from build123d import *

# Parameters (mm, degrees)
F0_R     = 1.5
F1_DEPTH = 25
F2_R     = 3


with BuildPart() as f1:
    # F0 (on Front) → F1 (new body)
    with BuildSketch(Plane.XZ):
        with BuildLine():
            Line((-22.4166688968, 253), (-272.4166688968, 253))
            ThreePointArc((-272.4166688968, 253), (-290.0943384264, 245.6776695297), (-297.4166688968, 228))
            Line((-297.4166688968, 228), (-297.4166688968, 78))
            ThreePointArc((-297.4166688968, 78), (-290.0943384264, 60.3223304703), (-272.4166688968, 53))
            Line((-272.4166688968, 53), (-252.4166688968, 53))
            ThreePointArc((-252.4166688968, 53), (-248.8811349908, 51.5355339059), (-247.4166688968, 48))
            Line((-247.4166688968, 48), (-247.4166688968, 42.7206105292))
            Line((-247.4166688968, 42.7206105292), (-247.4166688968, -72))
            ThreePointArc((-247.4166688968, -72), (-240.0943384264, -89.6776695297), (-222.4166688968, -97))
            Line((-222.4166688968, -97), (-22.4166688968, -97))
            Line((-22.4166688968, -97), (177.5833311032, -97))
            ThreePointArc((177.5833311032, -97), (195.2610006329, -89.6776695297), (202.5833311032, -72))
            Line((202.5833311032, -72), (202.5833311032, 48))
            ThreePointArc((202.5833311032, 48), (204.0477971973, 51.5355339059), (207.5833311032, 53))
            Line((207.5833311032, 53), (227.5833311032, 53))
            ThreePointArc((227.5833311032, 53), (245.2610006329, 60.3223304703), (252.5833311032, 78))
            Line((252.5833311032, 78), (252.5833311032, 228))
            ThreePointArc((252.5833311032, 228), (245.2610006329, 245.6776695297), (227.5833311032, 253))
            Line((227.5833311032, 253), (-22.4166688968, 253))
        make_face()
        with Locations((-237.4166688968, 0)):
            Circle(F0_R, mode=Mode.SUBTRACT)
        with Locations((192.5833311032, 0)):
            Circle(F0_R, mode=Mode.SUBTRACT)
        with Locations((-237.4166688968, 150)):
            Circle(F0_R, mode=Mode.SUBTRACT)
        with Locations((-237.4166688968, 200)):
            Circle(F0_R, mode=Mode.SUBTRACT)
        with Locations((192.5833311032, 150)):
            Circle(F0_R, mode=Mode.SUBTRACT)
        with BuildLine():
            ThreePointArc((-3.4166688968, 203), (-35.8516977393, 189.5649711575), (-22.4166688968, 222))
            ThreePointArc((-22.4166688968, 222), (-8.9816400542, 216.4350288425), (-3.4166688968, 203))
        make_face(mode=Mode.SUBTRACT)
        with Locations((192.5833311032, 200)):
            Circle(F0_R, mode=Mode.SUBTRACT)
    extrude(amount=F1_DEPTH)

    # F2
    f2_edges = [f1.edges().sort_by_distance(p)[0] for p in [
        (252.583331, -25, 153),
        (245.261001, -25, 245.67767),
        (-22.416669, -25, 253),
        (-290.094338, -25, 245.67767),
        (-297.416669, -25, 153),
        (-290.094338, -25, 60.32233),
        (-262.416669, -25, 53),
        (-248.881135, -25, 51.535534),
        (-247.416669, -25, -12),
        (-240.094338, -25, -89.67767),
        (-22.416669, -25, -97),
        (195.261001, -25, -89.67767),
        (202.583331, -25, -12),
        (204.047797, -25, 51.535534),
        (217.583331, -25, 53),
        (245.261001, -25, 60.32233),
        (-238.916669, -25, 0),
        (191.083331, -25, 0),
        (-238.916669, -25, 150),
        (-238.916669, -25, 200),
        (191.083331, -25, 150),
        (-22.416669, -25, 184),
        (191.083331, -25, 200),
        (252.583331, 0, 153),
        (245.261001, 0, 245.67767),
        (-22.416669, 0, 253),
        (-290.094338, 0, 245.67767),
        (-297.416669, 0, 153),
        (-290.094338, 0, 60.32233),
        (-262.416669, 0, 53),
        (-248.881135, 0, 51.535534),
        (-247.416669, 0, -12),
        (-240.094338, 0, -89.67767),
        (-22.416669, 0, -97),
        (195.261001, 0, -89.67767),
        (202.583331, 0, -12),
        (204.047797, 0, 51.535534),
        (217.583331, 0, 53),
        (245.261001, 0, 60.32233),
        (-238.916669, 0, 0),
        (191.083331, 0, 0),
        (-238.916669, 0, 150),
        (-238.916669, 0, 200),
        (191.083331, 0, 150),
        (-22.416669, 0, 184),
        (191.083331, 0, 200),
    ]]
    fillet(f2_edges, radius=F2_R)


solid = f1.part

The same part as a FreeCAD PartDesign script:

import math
import FreeCAD as App
import Part
import Sketcher
Q = App.Units.Quantity


def edges_at(feature, points):
    """Names of the edges that pass closest to the given points."""
    edges = feature.Shape.Edges
    near = lambda p: min(range(len(edges)), key=lambda i: edges[i].distToShape(Part.Vertex(*p))[0])
    return sorted({f"Edge{near(p) + 1}" for p in points})

doc = App.newDocument("Part")
body = doc.addObject("PartDesign::Body", "Body")

# Sketch on XZ plane
sketch1 = body.newObject("Sketcher::SketchObject", "Sketch")
sketch1.AttachmentSupport = (doc.getObject("XZ_Plane"), [""])
sketch1.MapMode = "FlatFace"
sketch1.addGeometry([
    Part.ArcOfCircle(Part.Circle(App.Vector(-272.4, 228, 0), App.Vector(0, 0, 1), 25), math.radians(90), math.radians(180)),  # 0
    Part.LineSegment(App.Vector(-297.4, 228, 0), App.Vector(-297.4, 78, 0)),  # 1
    Part.ArcOfCircle(Part.Circle(App.Vector(-272.4, 78, 0), App.Vector(0, 0, 1), 25), math.radians(180), math.radians(270)),  # 2
    Part.LineSegment(App.Vector(-272.4, 53, 0), App.Vector(-252.4, 53, 0)),  # 3
    Part.ArcOfCircle(Part.Circle(App.Vector(-252.4, 48, 0), App.Vector(0, 0, 1), 5), math.radians(0), math.radians(90)),  # 4
    Part.LineSegment(App.Vector(-247.4, 48, 0), App.Vector(-247.4, -72, 0)),  # 5
    Part.ArcOfCircle(Part.Circle(App.Vector(-222.4, -72, 0), App.Vector(0, 0, 1), 25), math.radians(180), math.radians(270)),  # 6
    Part.LineSegment(App.Vector(-222.4, -97, 0), App.Vector(177.6, -97, 0)),  # 7
    Part.ArcOfCircle(Part.Circle(App.Vector(177.6, -72, 0), App.Vector(0, 0, 1), 25), math.radians(-90), math.radians(0)),  # 8
    Part.LineSegment(App.Vector(202.6, -72, 0), App.Vector(202.6, 48, 0)),  # 9
    Part.ArcOfCircle(Part.Circle(App.Vector(207.6, 48, 0), App.Vector(0, 0, 1), 5), math.radians(90), math.radians(180)),  # 10
    Part.LineSegment(App.Vector(207.6, 53, 0), App.Vector(227.6, 53, 0)),  # 11
    Part.ArcOfCircle(Part.Circle(App.Vector(227.6, 78, 0), App.Vector(0, 0, 1), 25), math.radians(-90), math.radians(0)),  # 12
    Part.LineSegment(App.Vector(252.6, 78, 0), App.Vector(252.6, 228, 0)),  # 13
    Part.ArcOfCircle(Part.Circle(App.Vector(227.6, 228, 0), App.Vector(0, 0, 1), 25), math.radians(0), math.radians(90)),  # 14
    Part.LineSegment(App.Vector(227.6, 253, 0), App.Vector(-272.4, 253, 0)),  # 15
    Part.Circle(App.Vector(-237.4, 0, 0), App.Vector(0, 0, 1), 1.5),  # 16
    Part.Circle(App.Vector(192.6, 0, 0), App.Vector(0, 0, 1), 1.5),  # 17
    Part.Circle(App.Vector(-237.4, 150, 0), App.Vector(0, 0, 1), 1.5),  # 18
    Part.Circle(App.Vector(-237.4, 200, 0), App.Vector(0, 0, 1), 1.5),  # 19
    Part.Circle(App.Vector(192.6, 150, 0), App.Vector(0, 0, 1), 1.5),  # 20
    Part.Circle(App.Vector(-22.4, 203, 0), App.Vector(0, 0, 1), 19),  # 21
    Part.Circle(App.Vector(192.6, 200, 0), App.Vector(0, 0, 1), 1.5),  # 22
], False)
sketch1.addConstraint([
    Sketcher.Constraint("Tangent", 0, 2, 1, 1),
    Sketcher.Constraint("Tangent", 1, 2, 2, 1),
    Sketcher.Constraint("Tangent", 2, 2, 3, 1),
    Sketcher.Constraint("Tangent", 3, 2, 4, 2),
    Sketcher.Constraint("Tangent", 4, 1, 5, 1),
    Sketcher.Constraint("Tangent", 5, 2, 6, 1),
    Sketcher.Constraint("Tangent", 6, 2, 7, 1),
    Sketcher.Constraint("Tangent", 7, 2, 8, 1),
    Sketcher.Constraint("Tangent", 8, 2, 9, 1),
    Sketcher.Constraint("Tangent", 9, 2, 10, 2),
    Sketcher.Constraint("Tangent", 10, 1, 11, 1),
    Sketcher.Constraint("Tangent", 11, 2, 12, 1),
    Sketcher.Constraint("Tangent", 12, 2, 13, 1),
    Sketcher.Constraint("Tangent", 13, 2, 14, 1),
    Sketcher.Constraint("Tangent", 14, 2, 15, 1),
    Sketcher.Constraint("Tangent", 15, 2, 0, 1),
    Sketcher.Constraint("Vertical", 1),
    Sketcher.Constraint("Horizontal", 3),
    Sketcher.Constraint("Vertical", 5),
    Sketcher.Constraint("Horizontal", 7),
    Sketcher.Constraint("Vertical", 9),
    Sketcher.Constraint("Horizontal", 11),
    Sketcher.Constraint("Vertical", 13),
    Sketcher.Constraint("Horizontal", 15),
    Sketcher.Constraint("Equal", 0, 2),
    Sketcher.Constraint("Equal", 2, 6),
    Sketcher.Constraint("Equal", 6, 8),
    Sketcher.Constraint("Equal", 4, 10),
    Sketcher.Constraint("Equal", 8, 12),
    Sketcher.Constraint("Equal", 12, 14),
    Sketcher.Constraint("Equal", 16, 17),
    Sketcher.Constraint("Equal", 17, 18),
    Sketcher.Constraint("Equal", 18, 19),
    Sketcher.Constraint("Equal", 19, 20),
    Sketcher.Constraint("Equal", 20, 22),
    Sketcher.Constraint("PointOnObject", 16, 3, -1),
    Sketcher.Constraint("PointOnObject", 17, 3, -1),
    Sketcher.Constraint("Horizontal", 4, 3, 10, 3),
    Sketcher.Constraint("Horizontal", 18, 3, 20, 3),
    Sketcher.Constraint("Horizontal", 19, 3, 22, 3),
    Sketcher.Constraint("Vertical", 16, 3, 18, 3),
    Sketcher.Constraint("Vertical", 18, 3, 19, 3),
    Sketcher.Constraint("Vertical", 17, 3, 20, 3),
    Sketcher.Constraint("Vertical", 20, 3, 22, 3),
    Sketcher.Constraint("Equal", 3, 11),
    Sketcher.Constraint("Diameter", 16, Q("3 mm")),
    Sketcher.Constraint("Diameter", 21, Q("38 mm")),
    Sketcher.Constraint("Radius", 0, Q("25 mm")),
    Sketcher.Constraint("Radius", 4, Q("5 mm")),
    Sketcher.Constraint("DistanceX", 3, 1, 3, 2, Q("20 mm")),
    Sketcher.Constraint("DistanceX", 7, 1, 7, 2, Q("400 mm")),
    Sketcher.Constraint("DistanceY", 1, 2, 1, 1, Q("150 mm")),
    Sketcher.Constraint("DistanceY", 5, 2, 5, 1, Q("120 mm")),
    Sketcher.Constraint("DistanceY", -1, 1, 0, 3, Q("228 mm")),
    Sketcher.Constraint("DistanceY", -1, 1, 18, 3, Q("150 mm")),
    Sketcher.Constraint("DistanceY", -1, 1, 19, 3, Q("200 mm")),
    Sketcher.Constraint("DistanceY", -1, 1, 21, 3, Q("203 mm")),
    Sketcher.Constraint("DistanceX", 4, 3, 16, 3, Q("15 mm")),
    Sketcher.Constraint("DistanceX", 17, 3, 10, 3, Q("15 mm")),
    Sketcher.Constraint("DistanceX", 19, 3, 21, 3, Q("215 mm")),
    Sketcher.Constraint("DistanceX", 0, 3, -1, 1, Q("272.416669 mm")),
])
pad1 = body.newObject("PartDesign::Pad", "Pad")
pad1.Profile = sketch1
pad1.Length = 25
doc.recompute()

fillet = body.newObject("PartDesign::Fillet", "Fillet")
fillet.Base = (pad1, edges_at(pad1, [
    (252.583, -25, 153),
    (245.261, -25, 245.678),
    (-22.417, -25, 253),
    (-290.094, -25, 245.678),
    (-297.417, -25, 153),
    (-290.094, -25, 60.322),
    (-262.417, -25, 53),
    (-248.881, -25, 51.536),
    (-247.417, -25, -12),
    (-240.094, -25, -89.678),
    (-22.417, -25, -97),
    (195.261, -25, -89.678),
    (202.583, -25, -12),
    (204.048, -25, 51.536),
    (217.583, -25, 53),
    (245.261, -25, 60.322),
    (-238.917, -25, 0),
    (191.083, -25, 0),
    (-238.917, -25, 150),
    (-238.917, -25, 200),
    (191.083, -25, 150),
    (-22.417, -25, 184),
    (191.083, -25, 200),
    (252.583, 0, 153),
    (245.261, 0, 245.678),
    (-22.417, 0, 253),
    (-290.094, 0, 245.678),
    (-297.417, 0, 153),
    (-290.094, 0, 60.322),
    (-262.417, 0, 53),
    (-248.881, 0, 51.536),
    (-247.417, 0, -12),
    (-240.094, 0, -89.678),
    (-22.417, 0, -97),
    (195.261, 0, -89.678),
    (202.583, 0, -12),
    (204.048, 0, 51.536),
    (217.583, 0, 53),
    (245.261, 0, 60.322),
    (-238.917, 0, 0),
    (191.083, 0, 0),
    (-238.917, 0, 150),
    (-238.917, 0, 200),
    (191.083, 0, 150),
    (-22.417, 0, 184),
    (191.083, 0, 200),
]))
fillet.Radius = 3

doc.recompute()
